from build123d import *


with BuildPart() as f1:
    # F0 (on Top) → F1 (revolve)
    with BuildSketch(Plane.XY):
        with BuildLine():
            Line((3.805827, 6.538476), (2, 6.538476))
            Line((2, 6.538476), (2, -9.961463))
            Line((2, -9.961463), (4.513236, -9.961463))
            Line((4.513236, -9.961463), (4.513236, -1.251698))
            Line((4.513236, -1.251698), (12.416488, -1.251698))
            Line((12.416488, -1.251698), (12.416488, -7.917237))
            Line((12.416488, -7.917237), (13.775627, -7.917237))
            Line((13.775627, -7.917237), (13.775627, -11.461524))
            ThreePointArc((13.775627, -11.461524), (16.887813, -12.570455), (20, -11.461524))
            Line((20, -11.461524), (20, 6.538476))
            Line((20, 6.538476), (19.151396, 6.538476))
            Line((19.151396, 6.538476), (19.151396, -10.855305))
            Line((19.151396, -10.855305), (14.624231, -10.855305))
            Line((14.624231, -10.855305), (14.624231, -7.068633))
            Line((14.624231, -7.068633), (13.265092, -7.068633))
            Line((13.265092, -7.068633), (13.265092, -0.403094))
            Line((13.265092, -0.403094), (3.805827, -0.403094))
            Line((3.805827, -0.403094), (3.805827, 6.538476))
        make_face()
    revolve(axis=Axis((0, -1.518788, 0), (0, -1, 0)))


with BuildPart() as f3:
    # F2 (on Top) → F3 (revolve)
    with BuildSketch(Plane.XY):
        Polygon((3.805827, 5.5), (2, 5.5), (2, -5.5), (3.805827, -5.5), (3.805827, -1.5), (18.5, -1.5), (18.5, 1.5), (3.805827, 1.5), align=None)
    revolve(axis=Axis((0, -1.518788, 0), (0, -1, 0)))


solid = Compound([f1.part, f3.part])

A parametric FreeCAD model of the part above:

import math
import FreeCAD as App
import Part
import Sketcher
from FreeCAD import Vector


def add_polygon(sketch, points):
    """Adds a closed chain of lines whose ends are joined by coincident constraints."""
    first, n = sketch.GeometryCount, len(points)
    for a, b in zip(points, points[1:] + points[:1]):
        sketch.addGeometry(Part.LineSegment(App.Vector(*a, 0), App.Vector(*b, 0)), False)
    for i in range(n):
        sketch.addConstraint(Sketcher.Constraint("Coincident", first + i, 2, first + (i + 1) % n, 1))

doc = App.newDocument("Part")
params = doc.addObject("Spreadsheet::Sheet", "Params")
for row, (alias, value) in enumerate([
    ("sketch1_height", "18 mm"),
    ("revolution_angle", "360 deg"),
    ("sketch2_height", "11 mm"),
    ("sketch2_height2", "4 mm"),
    ("revolution2_angle", "360 deg"),
], start=1):
    params.set(f"A{row}", alias)
    params.set(f"B{row}", "=" + value)
    params.setAlias(f"B{row}", alias)

body = doc.addObject("PartDesign::Body", "Body")

sketch1 = body.newObject("Sketcher::SketchObject", "Sketch")
sketch1.AttachmentSupport = (doc.getObject("XY_Plane"), [""])
sketch1.MapMode = "FlatFace"
sketch1.addGeometry([
    Part.LineSegment(Vector(3.8, 6.5, 0), Vector(2, 6.5, 0)),
    Part.LineSegment(Vector(2, 6.5, 0), Vector(2, -10, 0)),
    Part.LineSegment(Vector(2, -10, 0), Vector(4.5, -10, 0)),
    Part.LineSegment(Vector(4.5, -10, 0), Vector(4.5, -1.3, 0)),
    Part.LineSegment(Vector(4.5, -1.3, 0), Vector(12.4, -1.3, 0)),
    Part.LineSegment(Vector(12.4, -1.3, 0), Vector(12.4, -7.9, 0)),
    Part.LineSegment(Vector(12.4, -7.9, 0), Vector(13.8, -7.9, 0)),
    Part.LineSegment(Vector(13.8, -7.9, 0), Vector(13.8, -11.5, 0)),
    Part.ArcOfCircle(Part.Circle(Vector(16.9, -7.6, 0), Vector(0, 0, 1), 4.9), math.radians(-129), math.radians(-51)),
    Part.LineSegment(Vector(20, -11.5, 0), Vector(20, 6.5, 0)),
    Part.LineSegment(Vector(20, 6.5, 0), Vector(19.2, 6.5, 0)),
    Part.LineSegment(Vector(19.2, 6.5, 0), Vector(19.2, -10.9, 0)),
    Part.LineSegment(Vector(19.2, -10.9, 0), Vector(14.6, -10.9, 0)),
    Part.LineSegment(Vector(14.6, -10.9, 0), Vector(14.6, -7.1, 0)),
    Part.LineSegment(Vector(14.6, -7.1, 0), Vector(13.3, -7.1, 0)),
    Part.LineSegment(Vector(13.3, -7.1, 0), Vector(13.3, -0.4, 0)),
    Part.LineSegment(Vector(13.3, -0.4, 0), Vector(3.8, -0.4, 0)),
    Part.LineSegment(Vector(3.8, -0.4, 0), Vector(3.8, 6.5, 0)),
], False)
sketch1.addConstraint([
    Sketcher.Constraint("Coincident", 0, 2, 1, 1),
    Sketcher.Constraint("Coincident", 1, 2, 2, 1),
    Sketcher.Constraint("Coincident", 2, 2, 3, 1),
    Sketcher.Constraint("Coincident", 3, 2, 4, 1),
    Sketcher.Constraint("Coincident", 4, 2, 5, 1),
    Sketcher.Constraint("Coincident", 5, 2, 6, 1),
    Sketcher.Constraint("Coincident", 6, 2, 7, 1),
    Sketcher.Constraint("Coincident", 7, 2, 8, 1),
    Sketcher.Constraint("Coincident", 8, 2, 9, 1),
    Sketcher.Constraint("Coincident", 9, 2, 10, 1),
    Sketcher.Constraint("Coincident", 10, 2, 11, 1),
    Sketcher.Constraint("Coincident", 11, 2, 12, 1),
    Sketcher.Constraint("Coincident", 12, 2, 13, 1),
    Sketcher.Constraint("Coincident", 13, 2, 14, 1),
    Sketcher.Constraint("Coincident", 14, 2, 15, 1),
    Sketcher.Constraint("Coincident", 15, 2, 16, 1),
    Sketcher.Constraint("Coincident", 16, 2, 17, 1),
    Sketcher.Constraint("Coincident", 17, 2, 0, 1),
    Sketcher.Constraint("Horizontal", 0),
    Sketcher.Constraint("Vertical", 1),
    Sketcher.Constraint("Horizontal", 2),
    Sketcher.Constraint("Vertical", 3),
    Sketcher.Constraint("Horizontal", 4),
    Sketcher.Constraint("Vertical", 5),
    Sketcher.Constraint("Horizontal", 6),
    Sketcher.Constraint("Vertical", 7),
    Sketcher.Constraint("Vertical", 9),
    Sketcher.Constraint("Horizontal", 10),
    Sketcher.Constraint("Vertical", 11),
    Sketcher.Constraint("Horizontal", 12),
    Sketcher.Constraint("Vertical", 13),
    Sketcher.Constraint("Horizontal", 14),
    Sketcher.Constraint("Vertical", 15),
    Sketcher.Constraint("Horizontal", 16),
    Sketcher.Constraint("Vertical", 17),
    Sketcher.Constraint("Horizontal", 7, 2, 8, 2),
    Sketcher.Constraint("Horizontal", 0, 2, 9, 2),
    Sketcher.Constraint("Equal", 6, 14),
    Sketcher.Constraint("Equal", 5, 15),
    Sketcher.Constraint("DistanceY", 9, 1, 9, 2, 18.0),
    Sketcher.Constraint("DistanceX", -1, 1, 0, 2, 2.0),
    Sketcher.Constraint("DistanceX", -1, 1, 8, 2, 20.0),
    Sketcher.Constraint("Radius", 8, 4.921601),
    Sketcher.Constraint("DistanceX", 4, 1, 4, 2, 7.903252),
    Sketcher.Constraint("DistanceX", 6, 1, 6, 2, 1.359139),
    Sketcher.Constraint("DistanceY", 1, 2, 1, 1, 16.499939),
    Sketcher.Constraint("DistanceY", 5, 2, 5, 1, 6.665539),
    Sketcher.Constraint("DistanceY", 11, 2, 11, 1, 17.393781),
    Sketcher.Constraint("DistanceY", 13, 1, 13, 2, 3.786672),
    Sketcher.Constraint("DistanceX", 0, 2, 0, 1, 1.805827),
    Sketcher.Constraint("DistanceX", 2, 1, 2, 2, 2.513236),
    Sketcher.Constraint("DistanceX", 10, 2, 10, 1, 0.848604),
    Sketcher.Constraint("DistanceX", 12, 2, 12, 1, 4.527165),
    Sketcher.Constraint("DistanceY", 3, 1, 3, 2, 8.709765),
    Sketcher.Constraint("DistanceY", 8, 3, -1, 1, 7.648854),
])
sketch1.setExpression("Constraints[39]", "Params.sketch1_height")
revolution = body.newObject("PartDesign::Revolution", "Revolution")
revolution.Profile = sketch1
revolution.ReferenceAxis = (sketch1, ["V_Axis"])
revolution.setExpression("Angle", "Params.revolution_angle")
body2 = doc.addObject("PartDesign::Body", "Body001")

sketch2 = body2.newObject("Sketcher::SketchObject", "Sketch001")
sketch2.AttachmentSupport = (doc.getObject("XY_Plane001"), [""])
sketch2.MapMode = "FlatFace"
add_polygon(sketch2, [(3.8, 5.5), (2, 5.5), (2, -5.5), (3.8, -5.5), (3.8, -1.5), (18.5, -1.5), (18.5, 1.5), (3.8, 1.5)])
sketch2.addConstraint([
    Sketcher.Constraint("Horizontal", 0),
    Sketcher.Constraint("Vertical", 1),
    Sketcher.Constraint("Horizontal", 2),
    Sketcher.Constraint("Vertical", 3),
    Sketcher.Constraint("Horizontal", 4),
    Sketcher.Constraint("Vertical", 5),
    Sketcher.Constraint("Horizontal", 6),
    Sketcher.Constraint("Vertical", 7),
    Sketcher.Constraint("Symmetric", 3, 2, 6, 2, -1),
    Sketcher.Constraint("Equal", 3, 7),
    Sketcher.Constraint("DistanceY", 1, 2, 1, 1, 11.0),
    Sketcher.Constraint("DistanceY", 3, 1, 3, 2, 4.0),
    Sketcher.Constraint("DistanceX", -1, 1, 0, 2, 2.0),
    Sketcher.Constraint("DistanceX", -1, 1, 4, 2, 18.5),
    Sketcher.Constraint("DistanceX", 0, 2, 0, 1, 1.805827),
])
sketch2.setExpression("Constraints[18]", "Params.sketch2_height")
sketch2.setExpression("Constraints[19]", "Params.sketch2_height2")
revolution2 = body2.newObject("PartDesign::Revolution", "Revolution001")
revolution2.Profile = sketch2
revolution2.ReferenceAxis = (sketch2, ["V_Axis"])
revolution2.setExpression("Angle", "Params.revolution2_angle")

doc.recompute()
